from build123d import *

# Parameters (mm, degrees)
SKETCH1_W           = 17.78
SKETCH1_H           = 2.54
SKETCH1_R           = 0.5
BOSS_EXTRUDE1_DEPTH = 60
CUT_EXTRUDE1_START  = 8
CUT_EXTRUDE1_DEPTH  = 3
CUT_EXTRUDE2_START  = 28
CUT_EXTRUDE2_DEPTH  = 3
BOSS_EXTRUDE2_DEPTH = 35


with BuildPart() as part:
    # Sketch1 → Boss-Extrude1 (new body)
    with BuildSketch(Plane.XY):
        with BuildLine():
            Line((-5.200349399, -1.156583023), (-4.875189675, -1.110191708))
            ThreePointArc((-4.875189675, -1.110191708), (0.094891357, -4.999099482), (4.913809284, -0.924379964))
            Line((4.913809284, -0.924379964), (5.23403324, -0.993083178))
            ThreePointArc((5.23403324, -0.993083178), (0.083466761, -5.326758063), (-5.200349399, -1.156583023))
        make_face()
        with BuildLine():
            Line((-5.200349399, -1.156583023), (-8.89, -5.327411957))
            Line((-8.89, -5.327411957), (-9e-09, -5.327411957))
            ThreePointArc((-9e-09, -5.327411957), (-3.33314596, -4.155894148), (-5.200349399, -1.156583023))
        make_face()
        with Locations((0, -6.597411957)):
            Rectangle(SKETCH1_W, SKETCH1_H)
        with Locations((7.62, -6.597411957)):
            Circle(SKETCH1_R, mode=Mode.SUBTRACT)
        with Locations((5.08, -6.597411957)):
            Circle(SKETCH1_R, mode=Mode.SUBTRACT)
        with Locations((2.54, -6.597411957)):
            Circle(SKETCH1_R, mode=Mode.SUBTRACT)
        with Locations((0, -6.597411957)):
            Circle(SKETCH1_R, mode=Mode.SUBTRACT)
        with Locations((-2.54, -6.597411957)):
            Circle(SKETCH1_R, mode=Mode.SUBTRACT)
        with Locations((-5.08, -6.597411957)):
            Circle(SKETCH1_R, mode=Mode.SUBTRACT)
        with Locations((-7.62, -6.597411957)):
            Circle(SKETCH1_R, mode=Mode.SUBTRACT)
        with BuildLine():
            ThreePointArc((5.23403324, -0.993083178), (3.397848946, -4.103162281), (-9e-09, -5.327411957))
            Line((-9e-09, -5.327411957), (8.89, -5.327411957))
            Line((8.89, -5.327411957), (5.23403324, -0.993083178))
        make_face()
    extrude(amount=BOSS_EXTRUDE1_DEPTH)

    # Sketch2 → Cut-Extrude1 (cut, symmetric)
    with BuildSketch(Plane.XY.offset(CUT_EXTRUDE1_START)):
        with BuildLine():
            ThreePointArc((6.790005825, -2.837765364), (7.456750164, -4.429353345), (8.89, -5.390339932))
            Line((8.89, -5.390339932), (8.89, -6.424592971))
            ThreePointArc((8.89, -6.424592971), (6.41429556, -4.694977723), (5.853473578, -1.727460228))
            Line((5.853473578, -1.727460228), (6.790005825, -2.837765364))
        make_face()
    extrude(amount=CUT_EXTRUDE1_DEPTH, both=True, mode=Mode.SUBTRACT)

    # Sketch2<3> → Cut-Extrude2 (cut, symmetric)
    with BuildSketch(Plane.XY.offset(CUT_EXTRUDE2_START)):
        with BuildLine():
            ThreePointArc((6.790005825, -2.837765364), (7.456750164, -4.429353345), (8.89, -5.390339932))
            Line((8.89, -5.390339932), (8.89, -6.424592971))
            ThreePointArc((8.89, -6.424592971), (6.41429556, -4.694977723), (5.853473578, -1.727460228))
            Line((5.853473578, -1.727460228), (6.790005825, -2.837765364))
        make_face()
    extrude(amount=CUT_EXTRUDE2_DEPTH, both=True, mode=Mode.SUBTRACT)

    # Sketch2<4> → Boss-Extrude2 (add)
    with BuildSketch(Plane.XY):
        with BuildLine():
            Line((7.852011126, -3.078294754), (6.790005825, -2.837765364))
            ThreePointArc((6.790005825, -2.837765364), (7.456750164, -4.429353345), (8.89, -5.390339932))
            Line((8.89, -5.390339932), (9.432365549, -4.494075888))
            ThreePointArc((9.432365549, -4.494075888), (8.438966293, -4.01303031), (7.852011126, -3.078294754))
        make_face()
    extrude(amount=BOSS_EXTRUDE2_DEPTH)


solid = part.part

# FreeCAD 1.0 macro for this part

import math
import FreeCAD as App
import Part
import Sketcher
Q = App.Units.Quantity

doc = App.newDocument("Part")
params = doc.addObject("Spreadsheet::Sheet", "Params")
for row, (alias, value) in enumerate([
    ("sketch1_diameter", "1 mm"),
    ("sketch1_radius", "5 mm"),
    ("sketch1_width", "17.78 mm"),
    ("sketch1_height", "2.54 mm"),
    ("pad1_length", "60 mm"),
    ("sketch2_radius", "3 mm"),
    ("sketch2_radius2", "4 mm"),
    ("pocket1_length", "6 mm"),
    ("sketch3_radius", "3 mm"),
    ("sketch3_radius2", "4 mm"),
    ("pocket2_length", "6 mm"),
    ("sketch4_radius", "3 mm"),
    ("sketch4_radius2", "2 mm"),
    ("pad2_length", "35 mm"),
], start=1):
    params.set(f"A{row}", alias)
    params.set(f"B{row}", "=" + value)
    params.setAlias(f"B{row}", alias)

body = doc.addObject("PartDesign::Body", "Body")

sketch1 = body.newObject("Sketcher::SketchObject", "Sketch")
sketch1.AttachmentSupport = (doc.getObject("XY_Plane"), [""])
sketch1.MapMode = "FlatFace"
sketch1.addGeometry(Part.LineSegment(App.Vector(-4.88, -1.11, 0), App.Vector(-5.2, -1.16, 0)), False)
sketch1.addGeometry(Part.LineSegment(App.Vector(-5.2, -1.16, 0), App.Vector(-8.89, -5.33, 0)), False)
sketch1.addGeometry(Part.LineSegment(App.Vector(-8.89, -5.33, 0), App.Vector(-8.89, -7.87, 0)), False)
sketch1.addGeometry(Part.LineSegment(App.Vector(-8.89, -7.87, 0), App.Vector(8.89, -7.87, 0)), False)
sketch1.addGeometry(Part.LineSegment(App.Vector(8.89, -7.87, 0), App.Vector(8.89, -5.33, 0)), False)
sketch1.addGeometry(Part.LineSegment(App.Vector(8.89, -5.33, 0), App.Vector(5.23, -0.99, 0)), False)
sketch1.addGeometry(Part.LineSegment(App.Vector(5.23, -0.99, 0), App.Vector(4.91, -0.92, 0)), False)
sketch1.addGeometry(Part.ArcOfCircle(Part.Circle(App.Vector(0, 0, 0), App.Vector(0, 0, 1), 5), math.radians(-167), math.radians(-11)), False)
sketch1.addGeometry(Part.Circle(App.Vector(7.62, -6.6, 0), App.Vector(0, 0, 1), 0.5), False)
sketch1.addGeometry(Part.Circle(App.Vector(5.08, -6.6, 0), App.Vector(0, 0, 1), 0.5), False)
sketch1.addGeometry(Part.Circle(App.Vector(2.54, -6.6, 0), App.Vector(0, 0, 1), 0.5), False)
sketch1.addGeometry(Part.Circle(App.Vector(0, -6.6, 0), App.Vector(0, 0, 1), 0.5), False)
sketch1.addGeometry(Part.Circle(App.Vector(-2.54, -6.6, 0), App.Vector(0, 0, 1), 0.5), False)
sketch1.addGeometry(Part.Circle(App.Vector(-5.08, -6.6, 0), App.Vector(0, 0, 1), 0.5), False)
sketch1.addGeometry(Part.Circle(App.Vector(-7.62, -6.6, 0), App.Vector(0, 0, 1), 0.5), False)
sketch1.addConstraint(Sketcher.Constraint("Coincident", 0, 2, 1, 1))
sketch1.addConstraint(Sketcher.Constraint("Coincident", 1, 2, 2, 1))
sketch1.addConstraint(Sketcher.Constraint("Coincident", 2, 2, 3, 1))
sketch1.addConstraint(Sketcher.Constraint("Coincident", 3, 2, 4, 1))
sketch1.addConstraint(Sketcher.Constraint("Coincident", 4, 2, 5, 1))
sketch1.addConstraint(Sketcher.Constraint("Coincident", 5, 2, 6, 1))
sketch1.addConstraint(Sketcher.Constraint("Coincident", 6, 2, 7, 2))
sketch1.addConstraint(Sketcher.Constraint("Coincident", 7, 1, 0, 1))
sketch1.addConstraint(Sketcher.Constraint("Vertical", 2))
sketch1.addConstraint(Sketcher.Constraint("Horizontal", 3))
sketch1.addConstraint(Sketcher.Constraint("Vertical", 4))
sketch1.addConstraint(Sketcher.Constraint("Coincident", 7, 3, -1, 1))
sketch1.addConstraint(Sketcher.Constraint("Equal", 8, 9))
sketch1.addConstraint(Sketcher.Constraint("Equal", 9, 10))
sketch1.addConstraint(Sketcher.Constraint("Equal", 10, 11))
sketch1.addConstraint(Sketcher.Constraint("Equal", 11, 12))
sketch1.addConstraint(Sketcher.Constraint("Equal", 12, 13))
sketch1.addConstraint(Sketcher.Constraint("Equal", 13, 14))
sketch1.addConstraint(Sketcher.Constraint("Symmetric", 10, 3, 12, 3, -2))
sketch1.addConstraint(Sketcher.Constraint("Symmetric", 9, 3, 13, 3, -2))
sketch1.addConstraint(Sketcher.Constraint("Symmetric", 8, 3, 14, 3, -2))
sketch1.addConstraint(Sketcher.Constraint("Symmetric", 1, 2, 4, 2, -2))
sketch1.addConstraint(Sketcher.Constraint("PointOnObject", 11, 3, -2))
sketch1.addConstraint(Sketcher.Constraint("Horizontal", 8, 3, 9, 3))
sketch1.addConstraint(Sketcher.Constraint("Horizontal", 9, 3, 10, 3))
sketch1.addConstraint(Sketcher.Constraint("Horizontal", 10, 3, 11, 3))
sketch1.addConstraint(Sketcher.Constraint("Diameter", 8, Q("1 mm")))
sketch1.addConstraint(Sketcher.Constraint("Radius", 7, Q("5 mm")))
sketch1.addConstraint(Sketcher.Constraint("DistanceX", 3, 1, 3, 2, Q("17.78 mm")))
sketch1.addConstraint(Sketcher.Constraint("DistanceY", 2, 2, 2, 1, Q("2.54 mm")))
sketch1.addConstraint(Sketcher.Constraint("DistanceX", -1, 1, 8, 3, Q("7.62 mm")))
sketch1.addConstraint(Sketcher.Constraint("DistanceX", -1, 1, 9, 3, Q("5.08 mm")))
sketch1.addConstraint(Sketcher.Constraint("DistanceX", -1, 1, 10, 3, Q("2.54 mm")))
sketch1.addConstraint(Sketcher.Constraint("DistanceY", 14, 3, 1, 2, Q("1.27 mm")))
sketch1.addConstraint(Sketcher.Constraint("Distance", 6, Q("0.327511 mm")))
sketch1.addConstraint(Sketcher.Constraint("DistanceY", 8, 3, -1, 1, Q("6.597412 mm")))
sketch1.addConstraint(Sketcher.Constraint("DistanceX", 0, 2, -1, 1, Q("5.200349 mm")))
sketch1.addConstraint(Sketcher.Constraint("DistanceX", -1, 1, 6, 2, Q("4.913809 mm")))
sketch1.addConstraint(Sketcher.Constraint("DistanceX", 7, 1, -1, 1, Q("4.87519 mm")))
sketch1.addConstraint(Sketcher.Constraint("DistanceY", 13, 3, 0, 2, Q("5.440829 mm")))
sketch1.addConstraint(Sketcher.Constraint("DistanceY", 9, 3, 5, 2, Q("5.604329 mm")))
sketch1.setExpression("Constraints[26]", "Params.sketch1_diameter")
sketch1.setExpression("Constraints[27]", "Params.sketch1_radius")
sketch1.setExpression("Constraints[28]", "Params.sketch1_width")
sketch1.setExpression("Constraints[29]", "Params.sketch1_height")
pad1 = body.newObject("PartDesign::Pad", "Pad")
pad1.Profile = sketch1
pad1.setExpression("Length", "Params.pad1_length")

sketch2 = body.newObject("Sketcher::SketchObject", "Sketch001")
sketch2.AttachmentSupport = (doc.getObject("XY_Plane"), [""])
sketch2.MapMode = "FlatFace"
sketch2.AttachmentOffset = App.Placement(App.Vector(0, 0, 8), App.Rotation())
sketch2.addGeometry(Part.ArcOfCircle(Part.Circle(App.Vector(9.8, -2.5, 0), App.Vector(0, 0, 1), 3), math.radians(-174), math.radians(-107)), False)
sketch2.addGeometry(Part.LineSegment(App.Vector(6.8, -2.8, 0), App.Vector(5.9, -1.7, 0)), False)
sketch2.addGeometry(Part.ArcOfCircle(Part.Circle(App.Vector(9.8, -2.5, 0), App.Vector(0, 0, 1), 4), math.radians(169), math.radians(257)), False)
sketch2.addGeometry(Part.LineSegment(App.Vector(8.9, -6.4, 0), App.Vector(8.9, -5.4, 0)), False)
sketch2.addConstraint(Sketcher.Constraint("Coincident", 0, 1, 1, 1))
sketch2.addConstraint(Sketcher.Constraint("Coincident", 1, 2, 2, 1))
sketch2.addConstraint(Sketcher.Constraint("Coincident", 2, 2, 3, 1))
sketch2.addConstraint(Sketcher.Constraint("Coincident", 3, 2, 0, 2))
sketch2.addConstraint(Sketcher.Constraint("Vertical", 3))
sketch2.addConstraint(Sketcher.Constraint("Coincident", 2, 3, 0, 3))
sketch2.addConstraint(Sketcher.Constraint("Radius", 0, Q("3 mm")))
sketch2.addConstraint(Sketcher.Constraint("Radius", 2, Q("4 mm")))
sketch2.addConstraint(Sketcher.Constraint("DistanceX", -1, 1, 2, 2, Q("8.89 mm")))
sketch2.addConstraint(Sketcher.Constraint("Distance", 1, Q("1.452539 mm")))
sketch2.addConstraint(Sketcher.Constraint("DistanceY", 3, 1, 3, 2, Q("1.034253 mm")))
sketch2.addConstraint(Sketcher.Constraint("DistanceY", 0, 3, -1, 1, Q("2.523382 mm")))
sketch2.addConstraint(Sketcher.Constraint("DistanceY", 1, 2, -1, 1, Q("1.72746 mm")))
sketch2.setExpression("Constraints[6]", "Params.sketch2_radius")
sketch2.setExpression("Constraints[7]", "Params.sketch2_radius2")
pocket1 = body.newObject("PartDesign::Pocket", "Pocket")
pocket1.Profile = sketch2
pocket1.setExpression("Length", "Params.pocket1_length")
pocket1.Midplane = True

sketch3 = body.newObject("Sketcher::SketchObject", "Sketch002")
sketch3.AttachmentSupport = (doc.getObject("XY_Plane"), [""])
sketch3.MapMode = "FlatFace"
sketch3.AttachmentOffset = App.Placement(App.Vector(0, 0, 28), App.Rotation())
sketch3.addGeometry(Part.ArcOfCircle(Part.Circle(App.Vector(9.8, -2.5, 0), App.Vector(0, 0, 1), 3), math.radians(-174), math.radians(-107)), False)
sketch3.addGeometry(Part.LineSegment(App.Vector(6.8, -2.8, 0), App.Vector(5.9, -1.7, 0)), False)
sketch3.addGeometry(Part.ArcOfCircle(Part.Circle(App.Vector(9.8, -2.5, 0), App.Vector(0, 0, 1), 4), math.radians(169), math.radians(257)), False)
sketch3.addGeometry(Part.LineSegment(App.Vector(8.9, -6.4, 0), App.Vector(8.9, -5.4, 0)), False)
sketch3.addConstraint(Sketcher.Constraint("Coincident", 0, 1, 1, 1))
sketch3.addConstraint(Sketcher.Constraint("Coincident", 1, 2, 2, 1))
sketch3.addConstraint(Sketcher.Constraint("Coincident", 2, 2, 3, 1))
sketch3.addConstraint(Sketcher.Constraint("Coincident", 3, 2, 0, 2))
sketch3.addConstraint(Sketcher.Constraint("Vertical", 3))
sketch3.addConstraint(Sketcher.Constraint("Coincident", 2, 3, 0, 3))
sketch3.addConstraint(Sketcher.Constraint("Radius", 0, Q("3 mm")))
sketch3.addConstraint(Sketcher.Constraint("Radius", 2, Q("4 mm")))
sketch3.addConstraint(Sketcher.Constraint("DistanceX", -1, 1, 2, 2, Q("8.89 mm")))
sketch3.addConstraint(Sketcher.Constraint("Distance", 1, Q("1.452539 mm")))
sketch3.addConstraint(Sketcher.Constraint("DistanceY", 3, 1, 3, 2, Q("1.034253 mm")))
sketch3.addConstraint(Sketcher.Constraint("DistanceY", 0, 3, -1, 1, Q("2.523382 mm")))
sketch3.addConstraint(Sketcher.Constraint("DistanceY", 1, 2, -1, 1, Q("1.72746 mm")))
sketch3.setExpression("Constraints[6]", "Params.sketch3_radius")
sketch3.setExpression("Constraints[7]", "Params.sketch3_radius2")
pocket2 = body.newObject("PartDesign::Pocket", "Pocket001")
pocket2.Profile = sketch3
pocket2.setExpression("Length", "Params.pocket2_length")
pocket2.Midplane = True

sketch4 = body.newObject("Sketcher::SketchObject", "Sketch003")
sketch4.AttachmentSupport = (doc.getObject("XY_Plane"), [""])
sketch4.MapMode = "FlatFace"
sketch4.addGeometry(Part.LineSegment(App.Vector(7.9, -3.1, 0), App.Vector(6.8, -2.8, 0)), False)
sketch4.addGeometry(Part.ArcOfCircle(Part.Circle(App.Vector(9.8, -2.5, 0), App.Vector(0, 0, 1), 3), math.radians(-174), math.radians(-107)), False)
sketch4.addGeometry(Part.LineSegment(App.Vector(8.9, -5.4, 0), App.Vector(9.4, -4.5, 0)), False)
sketch4.addGeometry(Part.ArcOfCircle(Part.Circle(App.Vector(9.8, -2.5, 0), App.Vector(0, 0, 1), 2), math.radians(-164), math.radians(-100)), False)
sketch4.addConstraint(Sketcher.Constraint("Coincident", 0, 2, 1, 1))
sketch4.addConstraint(Sketcher.Constraint("Coincident", 1, 2, 2, 1))
sketch4.addConstraint(Sketcher.Constraint("Coincident", 2, 2, 3, 2))
sketch4.addConstraint(Sketcher.Constraint("Coincident", 3, 1, 0, 1))
sketch4.addConstraint(Sketcher.Constraint("Coincident", 3, 3, 1, 3))
sketch4.addConstraint(Sketcher.Constraint("Radius", 1, Q("3 mm")))
sketch4.addConstraint(Sketcher.Constraint("Radius", 3, Q("2 mm")))
sketch4.addConstraint(Sketcher.Constraint("DistanceX", -1, 1, 1, 2, Q("8.89 mm")))
sketch4.addConstraint(Sketcher.Constraint("DistanceY", 1, 3, -1, 1, Q("2.523382 mm")))
sketch4.addConstraint(Sketcher.Constraint("DistanceY", 1, 2, -1, 1, Q("5.39034 mm")))
sketch4.addConstraint(Sketcher.Constraint("DistanceX", -1, 1, 3, 1, Q("7.852011 mm")))
sketch4.addConstraint(Sketcher.Constraint("DistanceX", 0, 2, 1, 3, Q("2.983482 mm")))
sketch4.addConstraint(Sketcher.Constraint("DistanceX", 2, 2, 1, 3, Q("0.341122 mm")))
sketch4.setExpression("Constraints[5]", "Params.sketch4_radius")
sketch4.setExpression("Constraints[6]", "Params.sketch4_radius2")
pad2 = body.newObject("PartDesign::Pad", "Pad001")
pad2.Profile = sketch4
pad2.setExpression("Length", "Params.pad2_length")

doc.recompute()
